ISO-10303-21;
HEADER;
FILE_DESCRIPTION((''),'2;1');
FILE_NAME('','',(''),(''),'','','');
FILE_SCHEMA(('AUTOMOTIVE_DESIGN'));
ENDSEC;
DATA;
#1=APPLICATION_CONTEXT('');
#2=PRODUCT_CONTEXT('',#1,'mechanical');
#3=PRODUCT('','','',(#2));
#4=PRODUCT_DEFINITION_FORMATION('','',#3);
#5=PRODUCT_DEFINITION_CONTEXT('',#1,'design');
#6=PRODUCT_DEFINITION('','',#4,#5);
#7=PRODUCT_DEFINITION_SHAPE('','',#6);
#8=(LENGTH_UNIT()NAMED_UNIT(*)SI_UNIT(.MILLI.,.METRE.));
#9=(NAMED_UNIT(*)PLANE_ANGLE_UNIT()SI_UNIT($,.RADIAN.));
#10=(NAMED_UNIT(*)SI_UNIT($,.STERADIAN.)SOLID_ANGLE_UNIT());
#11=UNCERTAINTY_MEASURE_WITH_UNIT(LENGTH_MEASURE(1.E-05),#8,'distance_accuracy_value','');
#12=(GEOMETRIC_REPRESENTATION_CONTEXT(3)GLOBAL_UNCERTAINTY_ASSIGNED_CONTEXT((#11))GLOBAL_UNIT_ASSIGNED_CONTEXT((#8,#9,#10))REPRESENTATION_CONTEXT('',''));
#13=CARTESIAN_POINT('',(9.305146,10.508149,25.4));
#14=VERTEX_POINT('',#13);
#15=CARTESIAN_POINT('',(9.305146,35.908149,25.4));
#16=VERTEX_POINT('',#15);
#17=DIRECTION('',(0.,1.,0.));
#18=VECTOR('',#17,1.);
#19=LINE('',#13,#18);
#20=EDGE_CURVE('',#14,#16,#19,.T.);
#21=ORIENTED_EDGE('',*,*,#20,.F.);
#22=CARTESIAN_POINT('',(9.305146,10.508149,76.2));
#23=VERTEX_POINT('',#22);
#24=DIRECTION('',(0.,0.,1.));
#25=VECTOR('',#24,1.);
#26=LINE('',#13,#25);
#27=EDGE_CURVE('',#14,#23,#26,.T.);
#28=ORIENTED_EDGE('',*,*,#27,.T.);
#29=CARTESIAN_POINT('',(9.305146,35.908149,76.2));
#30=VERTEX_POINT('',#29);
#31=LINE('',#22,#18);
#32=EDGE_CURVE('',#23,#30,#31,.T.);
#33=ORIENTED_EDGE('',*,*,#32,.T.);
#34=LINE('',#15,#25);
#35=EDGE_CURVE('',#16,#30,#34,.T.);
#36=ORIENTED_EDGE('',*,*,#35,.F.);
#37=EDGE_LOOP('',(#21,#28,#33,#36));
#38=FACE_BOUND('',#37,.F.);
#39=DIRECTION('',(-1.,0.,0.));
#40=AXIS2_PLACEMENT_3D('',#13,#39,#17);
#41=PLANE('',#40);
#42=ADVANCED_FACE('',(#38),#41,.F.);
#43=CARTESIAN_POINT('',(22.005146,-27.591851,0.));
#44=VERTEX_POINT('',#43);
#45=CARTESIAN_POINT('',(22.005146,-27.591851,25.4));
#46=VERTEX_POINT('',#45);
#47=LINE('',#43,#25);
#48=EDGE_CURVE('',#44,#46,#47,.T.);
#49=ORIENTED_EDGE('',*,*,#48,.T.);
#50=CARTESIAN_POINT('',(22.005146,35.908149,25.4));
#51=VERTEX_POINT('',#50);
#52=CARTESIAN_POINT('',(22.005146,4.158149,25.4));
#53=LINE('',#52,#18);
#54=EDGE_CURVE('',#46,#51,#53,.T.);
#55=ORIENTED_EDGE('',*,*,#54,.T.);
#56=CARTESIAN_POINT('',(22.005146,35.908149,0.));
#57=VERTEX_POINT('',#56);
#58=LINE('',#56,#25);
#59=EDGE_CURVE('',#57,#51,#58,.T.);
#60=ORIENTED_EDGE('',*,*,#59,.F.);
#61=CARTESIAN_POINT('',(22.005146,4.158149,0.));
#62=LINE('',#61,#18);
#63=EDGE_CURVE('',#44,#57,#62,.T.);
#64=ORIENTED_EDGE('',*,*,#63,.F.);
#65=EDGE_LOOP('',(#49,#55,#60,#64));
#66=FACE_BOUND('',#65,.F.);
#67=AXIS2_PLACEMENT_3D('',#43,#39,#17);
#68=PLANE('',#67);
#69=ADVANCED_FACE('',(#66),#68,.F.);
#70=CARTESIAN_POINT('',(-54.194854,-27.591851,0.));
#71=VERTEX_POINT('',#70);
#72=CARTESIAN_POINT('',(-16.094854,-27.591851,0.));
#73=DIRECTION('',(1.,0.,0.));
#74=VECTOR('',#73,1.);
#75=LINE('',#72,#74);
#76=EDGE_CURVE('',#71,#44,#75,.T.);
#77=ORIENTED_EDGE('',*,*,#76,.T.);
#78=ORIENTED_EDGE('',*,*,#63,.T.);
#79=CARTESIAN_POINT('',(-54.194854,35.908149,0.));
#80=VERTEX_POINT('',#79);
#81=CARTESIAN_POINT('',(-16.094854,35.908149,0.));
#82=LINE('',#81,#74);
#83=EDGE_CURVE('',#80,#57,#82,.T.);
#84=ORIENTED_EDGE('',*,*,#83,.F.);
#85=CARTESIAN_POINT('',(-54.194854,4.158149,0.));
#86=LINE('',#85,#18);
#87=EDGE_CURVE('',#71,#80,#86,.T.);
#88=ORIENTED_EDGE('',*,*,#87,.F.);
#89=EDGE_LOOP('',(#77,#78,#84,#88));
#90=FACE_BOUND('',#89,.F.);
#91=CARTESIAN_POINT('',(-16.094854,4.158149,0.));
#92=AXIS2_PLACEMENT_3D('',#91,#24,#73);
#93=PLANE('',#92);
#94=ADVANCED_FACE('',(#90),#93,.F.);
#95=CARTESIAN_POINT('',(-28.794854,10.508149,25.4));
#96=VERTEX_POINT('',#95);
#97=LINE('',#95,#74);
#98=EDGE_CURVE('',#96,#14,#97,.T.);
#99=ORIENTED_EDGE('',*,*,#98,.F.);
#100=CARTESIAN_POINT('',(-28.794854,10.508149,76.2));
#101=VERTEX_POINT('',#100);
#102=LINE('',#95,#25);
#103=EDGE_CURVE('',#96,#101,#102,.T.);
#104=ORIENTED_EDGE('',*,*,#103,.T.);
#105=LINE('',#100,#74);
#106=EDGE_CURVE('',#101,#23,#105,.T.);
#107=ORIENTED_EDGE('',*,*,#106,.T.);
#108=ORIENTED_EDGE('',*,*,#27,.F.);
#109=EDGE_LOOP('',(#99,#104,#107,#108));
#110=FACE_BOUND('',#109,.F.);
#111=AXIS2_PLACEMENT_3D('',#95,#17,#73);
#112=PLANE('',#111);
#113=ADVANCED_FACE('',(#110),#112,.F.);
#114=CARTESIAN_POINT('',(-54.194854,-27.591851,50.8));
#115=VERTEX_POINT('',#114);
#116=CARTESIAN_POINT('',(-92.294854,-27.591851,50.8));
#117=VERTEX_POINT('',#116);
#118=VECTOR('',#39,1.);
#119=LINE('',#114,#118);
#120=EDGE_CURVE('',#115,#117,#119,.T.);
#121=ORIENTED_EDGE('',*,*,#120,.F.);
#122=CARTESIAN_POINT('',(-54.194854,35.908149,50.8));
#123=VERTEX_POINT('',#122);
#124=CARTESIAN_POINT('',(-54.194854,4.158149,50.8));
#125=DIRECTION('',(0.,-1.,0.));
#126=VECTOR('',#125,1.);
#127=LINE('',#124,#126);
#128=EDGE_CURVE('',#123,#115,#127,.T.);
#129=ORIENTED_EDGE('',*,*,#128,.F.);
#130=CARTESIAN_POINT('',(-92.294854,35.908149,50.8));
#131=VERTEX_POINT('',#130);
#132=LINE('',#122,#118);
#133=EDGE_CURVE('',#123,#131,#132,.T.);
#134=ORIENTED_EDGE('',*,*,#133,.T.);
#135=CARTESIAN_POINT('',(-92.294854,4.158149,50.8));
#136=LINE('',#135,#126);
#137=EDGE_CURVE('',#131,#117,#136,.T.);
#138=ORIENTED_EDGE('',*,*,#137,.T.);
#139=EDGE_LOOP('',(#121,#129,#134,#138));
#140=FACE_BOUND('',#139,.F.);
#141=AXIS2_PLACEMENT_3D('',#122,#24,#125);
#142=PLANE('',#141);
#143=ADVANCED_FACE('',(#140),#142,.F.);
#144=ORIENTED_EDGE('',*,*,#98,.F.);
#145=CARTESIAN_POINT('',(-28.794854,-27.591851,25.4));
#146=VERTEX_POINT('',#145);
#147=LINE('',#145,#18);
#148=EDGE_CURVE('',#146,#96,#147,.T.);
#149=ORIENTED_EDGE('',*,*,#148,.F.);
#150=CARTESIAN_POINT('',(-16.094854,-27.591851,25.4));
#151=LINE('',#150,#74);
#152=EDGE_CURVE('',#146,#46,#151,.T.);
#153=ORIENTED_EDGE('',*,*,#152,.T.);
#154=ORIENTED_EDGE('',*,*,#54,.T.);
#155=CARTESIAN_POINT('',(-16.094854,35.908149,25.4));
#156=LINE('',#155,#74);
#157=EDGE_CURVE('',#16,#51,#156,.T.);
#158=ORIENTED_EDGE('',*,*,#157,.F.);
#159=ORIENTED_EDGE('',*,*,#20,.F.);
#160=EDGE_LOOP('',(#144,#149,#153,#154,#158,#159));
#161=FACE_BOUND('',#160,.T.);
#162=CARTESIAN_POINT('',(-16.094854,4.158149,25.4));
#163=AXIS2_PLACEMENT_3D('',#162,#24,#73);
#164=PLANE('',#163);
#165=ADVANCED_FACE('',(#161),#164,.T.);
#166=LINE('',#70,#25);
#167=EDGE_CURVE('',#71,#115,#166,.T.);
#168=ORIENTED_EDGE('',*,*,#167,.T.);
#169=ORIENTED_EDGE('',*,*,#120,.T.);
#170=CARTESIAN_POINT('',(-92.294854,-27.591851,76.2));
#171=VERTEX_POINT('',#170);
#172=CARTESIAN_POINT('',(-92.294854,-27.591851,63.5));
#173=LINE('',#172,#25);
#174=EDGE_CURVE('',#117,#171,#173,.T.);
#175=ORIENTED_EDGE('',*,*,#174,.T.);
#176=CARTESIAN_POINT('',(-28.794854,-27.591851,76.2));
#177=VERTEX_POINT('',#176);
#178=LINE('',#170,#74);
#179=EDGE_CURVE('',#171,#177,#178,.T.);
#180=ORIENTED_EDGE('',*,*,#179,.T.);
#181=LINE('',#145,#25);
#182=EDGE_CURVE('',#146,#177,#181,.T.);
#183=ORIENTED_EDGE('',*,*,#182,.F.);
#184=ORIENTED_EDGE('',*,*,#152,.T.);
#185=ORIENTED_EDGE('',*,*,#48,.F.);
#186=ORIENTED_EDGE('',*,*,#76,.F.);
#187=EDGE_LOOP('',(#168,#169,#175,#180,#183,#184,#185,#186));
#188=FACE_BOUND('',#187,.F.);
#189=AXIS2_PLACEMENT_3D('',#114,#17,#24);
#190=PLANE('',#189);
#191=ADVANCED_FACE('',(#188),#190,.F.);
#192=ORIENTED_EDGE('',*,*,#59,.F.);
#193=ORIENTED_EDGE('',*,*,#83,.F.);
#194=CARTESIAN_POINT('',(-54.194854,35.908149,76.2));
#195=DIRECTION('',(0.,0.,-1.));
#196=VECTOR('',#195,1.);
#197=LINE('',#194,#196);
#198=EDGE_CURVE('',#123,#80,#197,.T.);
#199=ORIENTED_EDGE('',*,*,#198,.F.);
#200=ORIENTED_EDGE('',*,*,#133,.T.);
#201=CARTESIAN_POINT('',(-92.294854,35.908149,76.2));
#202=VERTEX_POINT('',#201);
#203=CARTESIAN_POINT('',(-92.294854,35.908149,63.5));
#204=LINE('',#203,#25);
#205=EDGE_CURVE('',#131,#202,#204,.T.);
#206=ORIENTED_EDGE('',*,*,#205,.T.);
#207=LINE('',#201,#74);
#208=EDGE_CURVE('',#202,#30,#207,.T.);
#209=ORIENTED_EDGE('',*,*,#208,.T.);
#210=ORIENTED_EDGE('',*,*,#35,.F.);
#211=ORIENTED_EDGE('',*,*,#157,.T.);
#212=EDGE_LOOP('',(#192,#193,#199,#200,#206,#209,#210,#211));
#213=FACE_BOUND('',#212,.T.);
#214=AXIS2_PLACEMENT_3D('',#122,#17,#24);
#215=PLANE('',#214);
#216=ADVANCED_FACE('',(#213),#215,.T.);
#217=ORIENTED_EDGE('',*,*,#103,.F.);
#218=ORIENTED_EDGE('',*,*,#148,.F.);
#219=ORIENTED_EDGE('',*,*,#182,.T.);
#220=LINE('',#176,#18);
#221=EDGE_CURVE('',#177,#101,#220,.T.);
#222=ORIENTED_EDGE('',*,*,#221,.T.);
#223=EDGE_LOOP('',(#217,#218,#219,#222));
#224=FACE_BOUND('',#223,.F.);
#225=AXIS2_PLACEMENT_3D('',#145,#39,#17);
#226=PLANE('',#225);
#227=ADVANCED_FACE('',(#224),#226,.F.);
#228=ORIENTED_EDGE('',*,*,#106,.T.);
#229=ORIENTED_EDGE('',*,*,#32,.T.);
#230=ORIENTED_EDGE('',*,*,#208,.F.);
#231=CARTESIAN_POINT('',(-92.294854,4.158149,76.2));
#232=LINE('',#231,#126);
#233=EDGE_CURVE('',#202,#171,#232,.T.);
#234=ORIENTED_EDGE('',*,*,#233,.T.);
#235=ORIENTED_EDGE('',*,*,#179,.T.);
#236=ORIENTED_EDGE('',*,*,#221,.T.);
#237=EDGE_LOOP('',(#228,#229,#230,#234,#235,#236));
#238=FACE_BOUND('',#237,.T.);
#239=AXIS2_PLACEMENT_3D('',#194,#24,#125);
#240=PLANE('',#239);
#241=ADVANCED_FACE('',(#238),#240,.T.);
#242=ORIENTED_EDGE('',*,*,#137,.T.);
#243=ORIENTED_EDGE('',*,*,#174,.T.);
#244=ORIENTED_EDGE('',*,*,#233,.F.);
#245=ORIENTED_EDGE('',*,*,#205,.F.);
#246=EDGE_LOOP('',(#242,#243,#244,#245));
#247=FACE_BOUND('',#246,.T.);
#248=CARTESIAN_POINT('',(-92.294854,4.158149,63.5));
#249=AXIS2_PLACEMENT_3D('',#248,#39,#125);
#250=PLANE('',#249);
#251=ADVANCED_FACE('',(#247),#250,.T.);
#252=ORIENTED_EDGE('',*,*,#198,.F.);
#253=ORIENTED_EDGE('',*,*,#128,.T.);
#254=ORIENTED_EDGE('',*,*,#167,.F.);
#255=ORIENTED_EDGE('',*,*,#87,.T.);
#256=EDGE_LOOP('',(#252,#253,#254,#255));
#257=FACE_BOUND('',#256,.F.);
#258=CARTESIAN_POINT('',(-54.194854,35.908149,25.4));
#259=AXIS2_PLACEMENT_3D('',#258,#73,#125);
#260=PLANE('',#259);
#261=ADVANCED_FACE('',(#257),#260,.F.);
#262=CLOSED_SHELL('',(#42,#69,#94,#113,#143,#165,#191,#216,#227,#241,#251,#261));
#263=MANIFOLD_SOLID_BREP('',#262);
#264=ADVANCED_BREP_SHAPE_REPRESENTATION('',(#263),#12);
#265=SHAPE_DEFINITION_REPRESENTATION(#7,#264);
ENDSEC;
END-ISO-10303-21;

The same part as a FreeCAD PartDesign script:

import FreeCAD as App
import Part
import Sketcher
Q = App.Units.Quantity


def add_polygon(sketch, points):
    """Adds a closed chain of lines whose ends are joined by coincident constraints."""
    first, n = sketch.GeometryCount, len(points)
    for a, b in zip(points, points[1:] + points[:1]):
        sketch.addGeometry(Part.LineSegment(App.Vector(*a, 0), App.Vector(*b, 0)), False)
    for i in range(n):
        sketch.addConstraint(Sketcher.Constraint("Coincident", first + i, 2, first + (i + 1) % n, 1))

doc = App.newDocument("Part")
body = doc.addObject("PartDesign::Body", "Body")

# Sketch on XY plane
sketch1 = body.newObject("Sketcher::SketchObject", "Sketch")
sketch1.AttachmentSupport = (doc.getObject("XY_Plane"), [""])
sketch1.MapMode = "FlatFace"
add_polygon(sketch1, [(-54, 36), (-54, -28), (22, -28), (22, 36)])  # lines 0-3
sketch1.addConstraint([
    Sketcher.Constraint("Vertical", 0),
    Sketcher.Constraint("Horizontal", 1),
    Sketcher.Constraint("Vertical", 2),
    Sketcher.Constraint("Horizontal", 3),
    Sketcher.Constraint("DistanceX", 1, 1, 1, 2, Q("3 in")),
    Sketcher.Constraint("DistanceY", 0, 2, 0, 1, Q("2.5 in")),
    Sketcher.Constraint("DistanceY", 0, 2, -1, 1, Q("27.591851 mm")),
    Sketcher.Constraint("DistanceX", 0, 2, -1, 1, Q("54.194854 mm")),
])
pad1 = body.newObject("PartDesign::Pad", "Pad")
pad1.Profile = sketch1
pad1.Length = Q("1 in")

# Sketch on XY plane
sketch2 = body.newObject("Sketcher::SketchObject", "Sketch001")
sketch2.AttachmentSupport = (doc.getObject("XY_Plane"), [""])
sketch2.MapMode = "FlatFace"
sketch2.AttachmentOffset = App.Placement(App.Vector(0, 0, 1 * 25.4), App.Rotation())
add_polygon(sketch2, [(-54, 36), (-54, -28), (-29, -28), (-29, 11), (9, 11), (9, 36)])  # lines 0-5
sketch2.addConstraint([
    Sketcher.Constraint("Vertical", 0),
    Sketcher.Constraint("Horizontal", 1),
    Sketcher.Constraint("Vertical", 2),
    Sketcher.Constraint("Horizontal", 3),
    Sketcher.Constraint("Vertical", 4),
    Sketcher.Constraint("Horizontal", 5),
    Sketcher.Constraint("Equal", 5, 0),
    Sketcher.Constraint("Equal", 3, 2),
    Sketcher.Constraint("DistanceX", 1, 1, 1, 2, Q("1 in")),
    Sketcher.Constraint("DistanceX", 3, 1, 3, 2, Q("1.5 in")),
    Sketcher.Constraint("DistanceY", 0, 2, -1, 1, Q("27.591851 mm")),
    Sketcher.Constraint("DistanceX", 0, 2, -1, 1, Q("54.194854 mm")),
])
pad2 = body.newObject("PartDesign::Pad", "Pad001")
pad2.Profile = sketch2
pad2.Length = Q("2 in")

# Sketch on YZ plane
sketch3 = body.newObject("Sketcher::SketchObject", "Sketch002")
sketch3.AttachmentSupport = (doc.getObject("YZ_Plane"), [""])
sketch3.MapMode = "FlatFace"
sketch3.AttachmentOffset = App.Placement(App.Vector(0, 0, -54.194854), App.Rotation())
add_polygon(sketch3, [(36, 76), (36, 51), (-28, 51), (-28, 76)])  # lines 0-3
sketch3.addConstraint([
    Sketcher.Constraint("Vertical", 0),
    Sketcher.Constraint("Horizontal", 1),
    Sketcher.Constraint("Vertical", 2),
    Sketcher.Constraint("Horizontal", 3),
    Sketcher.Constraint("DistanceY", 0, 2, 0, 1, Q("1 in")),
    Sketcher.Constraint("DistanceX", 1, 2, 1, 1, Q("2.5 in")),
    Sketcher.Constraint("DistanceY", -1, 1, 0, 2, Q("2 in")),
    Sketcher.Constraint("DistanceX", -1, 1, 0, 2, Q("35.908149 mm")),
])
pad3 = body.newObject("PartDesign::Pad", "Pad002")
pad3.Profile = sketch3
pad3.Length = Q("1.5 in")
pad3.Reversed = True

doc.recompute()
